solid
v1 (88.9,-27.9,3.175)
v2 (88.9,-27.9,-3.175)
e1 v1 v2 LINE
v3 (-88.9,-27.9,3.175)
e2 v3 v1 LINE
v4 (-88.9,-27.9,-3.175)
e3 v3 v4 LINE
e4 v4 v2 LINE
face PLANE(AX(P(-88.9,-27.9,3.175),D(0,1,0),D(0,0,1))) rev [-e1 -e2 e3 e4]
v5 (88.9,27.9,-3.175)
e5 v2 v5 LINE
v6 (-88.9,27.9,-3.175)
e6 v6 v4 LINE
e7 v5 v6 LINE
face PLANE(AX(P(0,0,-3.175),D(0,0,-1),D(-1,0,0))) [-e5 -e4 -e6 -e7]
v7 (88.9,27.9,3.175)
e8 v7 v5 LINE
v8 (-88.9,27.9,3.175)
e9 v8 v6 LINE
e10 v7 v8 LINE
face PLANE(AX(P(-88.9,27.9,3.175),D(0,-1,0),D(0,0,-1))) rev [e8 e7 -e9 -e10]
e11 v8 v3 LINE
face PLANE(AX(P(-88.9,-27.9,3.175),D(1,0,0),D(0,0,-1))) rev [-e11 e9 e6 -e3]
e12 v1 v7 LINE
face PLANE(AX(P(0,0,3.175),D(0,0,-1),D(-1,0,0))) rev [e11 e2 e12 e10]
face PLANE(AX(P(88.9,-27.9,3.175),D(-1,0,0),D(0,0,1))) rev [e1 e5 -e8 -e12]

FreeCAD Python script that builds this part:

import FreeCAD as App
import Part
import Sketcher
Q = App.Units.Quantity

doc = App.newDocument("Part")
body = doc.addObject("PartDesign::Body", "Body")

# Sketch on XY plane
sketch1 = body.newObject("Sketcher::SketchObject", "Sketch")
sketch1.AttachmentSupport = (doc.getObject("XY_Plane"), [""])
sketch1.MapMode = "FlatFace"
sketch1.addGeometry(Part.LineSegment(App.Vector(-88.9, 27.9, 0), App.Vector(-88.9, -27.9, 0)), False)
sketch1.addGeometry(Part.LineSegment(App.Vector(-88.9, -27.9, 0), App.Vector(88.9, -27.9, 0)), False)
sketch1.addGeometry(Part.LineSegment(App.Vector(88.9, -27.9, 0), App.Vector(88.9, 27.9, 0)), False)
sketch1.addGeometry(Part.LineSegment(App.Vector(88.9, 27.9, 0), App.Vector(-88.9, 27.9, 0)), False)
sketch1.addConstraint(Sketcher.Constraint("Coincident", 0, 2, 1, 1))
sketch1.addConstraint(Sketcher.Constraint("Coincident", 1, 2, 2, 1))
sketch1.addConstraint(Sketcher.Constraint("Coincident", 2, 2, 3, 1))
sketch1.addConstraint(Sketcher.Constraint("Coincident", 3, 2, 0, 1))
sketch1.addConstraint(Sketcher.Constraint("Vertical", 0))
sketch1.addConstraint(Sketcher.Constraint("Horizontal", 1))
sketch1.addConstraint(Sketcher.Constraint("Vertical", 2))
sketch1.addConstraint(Sketcher.Constraint("Horizontal", 3))
sketch1.addConstraint(Sketcher.Constraint("Symmetric", 0, 2, 2, 2, -1, 1))
sketch1.addConstraint(Sketcher.Constraint("DistanceX", 1, 1, 1, 2, Q("7 in")))
sketch1.addConstraint(Sketcher.Constraint("DistanceY", 0, 2, 0, 1, 55.8))
pad1 = body.newObject("PartDesign::Pad", "Pad")
pad1.Profile = sketch1
pad1.Length = Q("0.25 in")
pad1.Midplane = True

doc.recompute()
